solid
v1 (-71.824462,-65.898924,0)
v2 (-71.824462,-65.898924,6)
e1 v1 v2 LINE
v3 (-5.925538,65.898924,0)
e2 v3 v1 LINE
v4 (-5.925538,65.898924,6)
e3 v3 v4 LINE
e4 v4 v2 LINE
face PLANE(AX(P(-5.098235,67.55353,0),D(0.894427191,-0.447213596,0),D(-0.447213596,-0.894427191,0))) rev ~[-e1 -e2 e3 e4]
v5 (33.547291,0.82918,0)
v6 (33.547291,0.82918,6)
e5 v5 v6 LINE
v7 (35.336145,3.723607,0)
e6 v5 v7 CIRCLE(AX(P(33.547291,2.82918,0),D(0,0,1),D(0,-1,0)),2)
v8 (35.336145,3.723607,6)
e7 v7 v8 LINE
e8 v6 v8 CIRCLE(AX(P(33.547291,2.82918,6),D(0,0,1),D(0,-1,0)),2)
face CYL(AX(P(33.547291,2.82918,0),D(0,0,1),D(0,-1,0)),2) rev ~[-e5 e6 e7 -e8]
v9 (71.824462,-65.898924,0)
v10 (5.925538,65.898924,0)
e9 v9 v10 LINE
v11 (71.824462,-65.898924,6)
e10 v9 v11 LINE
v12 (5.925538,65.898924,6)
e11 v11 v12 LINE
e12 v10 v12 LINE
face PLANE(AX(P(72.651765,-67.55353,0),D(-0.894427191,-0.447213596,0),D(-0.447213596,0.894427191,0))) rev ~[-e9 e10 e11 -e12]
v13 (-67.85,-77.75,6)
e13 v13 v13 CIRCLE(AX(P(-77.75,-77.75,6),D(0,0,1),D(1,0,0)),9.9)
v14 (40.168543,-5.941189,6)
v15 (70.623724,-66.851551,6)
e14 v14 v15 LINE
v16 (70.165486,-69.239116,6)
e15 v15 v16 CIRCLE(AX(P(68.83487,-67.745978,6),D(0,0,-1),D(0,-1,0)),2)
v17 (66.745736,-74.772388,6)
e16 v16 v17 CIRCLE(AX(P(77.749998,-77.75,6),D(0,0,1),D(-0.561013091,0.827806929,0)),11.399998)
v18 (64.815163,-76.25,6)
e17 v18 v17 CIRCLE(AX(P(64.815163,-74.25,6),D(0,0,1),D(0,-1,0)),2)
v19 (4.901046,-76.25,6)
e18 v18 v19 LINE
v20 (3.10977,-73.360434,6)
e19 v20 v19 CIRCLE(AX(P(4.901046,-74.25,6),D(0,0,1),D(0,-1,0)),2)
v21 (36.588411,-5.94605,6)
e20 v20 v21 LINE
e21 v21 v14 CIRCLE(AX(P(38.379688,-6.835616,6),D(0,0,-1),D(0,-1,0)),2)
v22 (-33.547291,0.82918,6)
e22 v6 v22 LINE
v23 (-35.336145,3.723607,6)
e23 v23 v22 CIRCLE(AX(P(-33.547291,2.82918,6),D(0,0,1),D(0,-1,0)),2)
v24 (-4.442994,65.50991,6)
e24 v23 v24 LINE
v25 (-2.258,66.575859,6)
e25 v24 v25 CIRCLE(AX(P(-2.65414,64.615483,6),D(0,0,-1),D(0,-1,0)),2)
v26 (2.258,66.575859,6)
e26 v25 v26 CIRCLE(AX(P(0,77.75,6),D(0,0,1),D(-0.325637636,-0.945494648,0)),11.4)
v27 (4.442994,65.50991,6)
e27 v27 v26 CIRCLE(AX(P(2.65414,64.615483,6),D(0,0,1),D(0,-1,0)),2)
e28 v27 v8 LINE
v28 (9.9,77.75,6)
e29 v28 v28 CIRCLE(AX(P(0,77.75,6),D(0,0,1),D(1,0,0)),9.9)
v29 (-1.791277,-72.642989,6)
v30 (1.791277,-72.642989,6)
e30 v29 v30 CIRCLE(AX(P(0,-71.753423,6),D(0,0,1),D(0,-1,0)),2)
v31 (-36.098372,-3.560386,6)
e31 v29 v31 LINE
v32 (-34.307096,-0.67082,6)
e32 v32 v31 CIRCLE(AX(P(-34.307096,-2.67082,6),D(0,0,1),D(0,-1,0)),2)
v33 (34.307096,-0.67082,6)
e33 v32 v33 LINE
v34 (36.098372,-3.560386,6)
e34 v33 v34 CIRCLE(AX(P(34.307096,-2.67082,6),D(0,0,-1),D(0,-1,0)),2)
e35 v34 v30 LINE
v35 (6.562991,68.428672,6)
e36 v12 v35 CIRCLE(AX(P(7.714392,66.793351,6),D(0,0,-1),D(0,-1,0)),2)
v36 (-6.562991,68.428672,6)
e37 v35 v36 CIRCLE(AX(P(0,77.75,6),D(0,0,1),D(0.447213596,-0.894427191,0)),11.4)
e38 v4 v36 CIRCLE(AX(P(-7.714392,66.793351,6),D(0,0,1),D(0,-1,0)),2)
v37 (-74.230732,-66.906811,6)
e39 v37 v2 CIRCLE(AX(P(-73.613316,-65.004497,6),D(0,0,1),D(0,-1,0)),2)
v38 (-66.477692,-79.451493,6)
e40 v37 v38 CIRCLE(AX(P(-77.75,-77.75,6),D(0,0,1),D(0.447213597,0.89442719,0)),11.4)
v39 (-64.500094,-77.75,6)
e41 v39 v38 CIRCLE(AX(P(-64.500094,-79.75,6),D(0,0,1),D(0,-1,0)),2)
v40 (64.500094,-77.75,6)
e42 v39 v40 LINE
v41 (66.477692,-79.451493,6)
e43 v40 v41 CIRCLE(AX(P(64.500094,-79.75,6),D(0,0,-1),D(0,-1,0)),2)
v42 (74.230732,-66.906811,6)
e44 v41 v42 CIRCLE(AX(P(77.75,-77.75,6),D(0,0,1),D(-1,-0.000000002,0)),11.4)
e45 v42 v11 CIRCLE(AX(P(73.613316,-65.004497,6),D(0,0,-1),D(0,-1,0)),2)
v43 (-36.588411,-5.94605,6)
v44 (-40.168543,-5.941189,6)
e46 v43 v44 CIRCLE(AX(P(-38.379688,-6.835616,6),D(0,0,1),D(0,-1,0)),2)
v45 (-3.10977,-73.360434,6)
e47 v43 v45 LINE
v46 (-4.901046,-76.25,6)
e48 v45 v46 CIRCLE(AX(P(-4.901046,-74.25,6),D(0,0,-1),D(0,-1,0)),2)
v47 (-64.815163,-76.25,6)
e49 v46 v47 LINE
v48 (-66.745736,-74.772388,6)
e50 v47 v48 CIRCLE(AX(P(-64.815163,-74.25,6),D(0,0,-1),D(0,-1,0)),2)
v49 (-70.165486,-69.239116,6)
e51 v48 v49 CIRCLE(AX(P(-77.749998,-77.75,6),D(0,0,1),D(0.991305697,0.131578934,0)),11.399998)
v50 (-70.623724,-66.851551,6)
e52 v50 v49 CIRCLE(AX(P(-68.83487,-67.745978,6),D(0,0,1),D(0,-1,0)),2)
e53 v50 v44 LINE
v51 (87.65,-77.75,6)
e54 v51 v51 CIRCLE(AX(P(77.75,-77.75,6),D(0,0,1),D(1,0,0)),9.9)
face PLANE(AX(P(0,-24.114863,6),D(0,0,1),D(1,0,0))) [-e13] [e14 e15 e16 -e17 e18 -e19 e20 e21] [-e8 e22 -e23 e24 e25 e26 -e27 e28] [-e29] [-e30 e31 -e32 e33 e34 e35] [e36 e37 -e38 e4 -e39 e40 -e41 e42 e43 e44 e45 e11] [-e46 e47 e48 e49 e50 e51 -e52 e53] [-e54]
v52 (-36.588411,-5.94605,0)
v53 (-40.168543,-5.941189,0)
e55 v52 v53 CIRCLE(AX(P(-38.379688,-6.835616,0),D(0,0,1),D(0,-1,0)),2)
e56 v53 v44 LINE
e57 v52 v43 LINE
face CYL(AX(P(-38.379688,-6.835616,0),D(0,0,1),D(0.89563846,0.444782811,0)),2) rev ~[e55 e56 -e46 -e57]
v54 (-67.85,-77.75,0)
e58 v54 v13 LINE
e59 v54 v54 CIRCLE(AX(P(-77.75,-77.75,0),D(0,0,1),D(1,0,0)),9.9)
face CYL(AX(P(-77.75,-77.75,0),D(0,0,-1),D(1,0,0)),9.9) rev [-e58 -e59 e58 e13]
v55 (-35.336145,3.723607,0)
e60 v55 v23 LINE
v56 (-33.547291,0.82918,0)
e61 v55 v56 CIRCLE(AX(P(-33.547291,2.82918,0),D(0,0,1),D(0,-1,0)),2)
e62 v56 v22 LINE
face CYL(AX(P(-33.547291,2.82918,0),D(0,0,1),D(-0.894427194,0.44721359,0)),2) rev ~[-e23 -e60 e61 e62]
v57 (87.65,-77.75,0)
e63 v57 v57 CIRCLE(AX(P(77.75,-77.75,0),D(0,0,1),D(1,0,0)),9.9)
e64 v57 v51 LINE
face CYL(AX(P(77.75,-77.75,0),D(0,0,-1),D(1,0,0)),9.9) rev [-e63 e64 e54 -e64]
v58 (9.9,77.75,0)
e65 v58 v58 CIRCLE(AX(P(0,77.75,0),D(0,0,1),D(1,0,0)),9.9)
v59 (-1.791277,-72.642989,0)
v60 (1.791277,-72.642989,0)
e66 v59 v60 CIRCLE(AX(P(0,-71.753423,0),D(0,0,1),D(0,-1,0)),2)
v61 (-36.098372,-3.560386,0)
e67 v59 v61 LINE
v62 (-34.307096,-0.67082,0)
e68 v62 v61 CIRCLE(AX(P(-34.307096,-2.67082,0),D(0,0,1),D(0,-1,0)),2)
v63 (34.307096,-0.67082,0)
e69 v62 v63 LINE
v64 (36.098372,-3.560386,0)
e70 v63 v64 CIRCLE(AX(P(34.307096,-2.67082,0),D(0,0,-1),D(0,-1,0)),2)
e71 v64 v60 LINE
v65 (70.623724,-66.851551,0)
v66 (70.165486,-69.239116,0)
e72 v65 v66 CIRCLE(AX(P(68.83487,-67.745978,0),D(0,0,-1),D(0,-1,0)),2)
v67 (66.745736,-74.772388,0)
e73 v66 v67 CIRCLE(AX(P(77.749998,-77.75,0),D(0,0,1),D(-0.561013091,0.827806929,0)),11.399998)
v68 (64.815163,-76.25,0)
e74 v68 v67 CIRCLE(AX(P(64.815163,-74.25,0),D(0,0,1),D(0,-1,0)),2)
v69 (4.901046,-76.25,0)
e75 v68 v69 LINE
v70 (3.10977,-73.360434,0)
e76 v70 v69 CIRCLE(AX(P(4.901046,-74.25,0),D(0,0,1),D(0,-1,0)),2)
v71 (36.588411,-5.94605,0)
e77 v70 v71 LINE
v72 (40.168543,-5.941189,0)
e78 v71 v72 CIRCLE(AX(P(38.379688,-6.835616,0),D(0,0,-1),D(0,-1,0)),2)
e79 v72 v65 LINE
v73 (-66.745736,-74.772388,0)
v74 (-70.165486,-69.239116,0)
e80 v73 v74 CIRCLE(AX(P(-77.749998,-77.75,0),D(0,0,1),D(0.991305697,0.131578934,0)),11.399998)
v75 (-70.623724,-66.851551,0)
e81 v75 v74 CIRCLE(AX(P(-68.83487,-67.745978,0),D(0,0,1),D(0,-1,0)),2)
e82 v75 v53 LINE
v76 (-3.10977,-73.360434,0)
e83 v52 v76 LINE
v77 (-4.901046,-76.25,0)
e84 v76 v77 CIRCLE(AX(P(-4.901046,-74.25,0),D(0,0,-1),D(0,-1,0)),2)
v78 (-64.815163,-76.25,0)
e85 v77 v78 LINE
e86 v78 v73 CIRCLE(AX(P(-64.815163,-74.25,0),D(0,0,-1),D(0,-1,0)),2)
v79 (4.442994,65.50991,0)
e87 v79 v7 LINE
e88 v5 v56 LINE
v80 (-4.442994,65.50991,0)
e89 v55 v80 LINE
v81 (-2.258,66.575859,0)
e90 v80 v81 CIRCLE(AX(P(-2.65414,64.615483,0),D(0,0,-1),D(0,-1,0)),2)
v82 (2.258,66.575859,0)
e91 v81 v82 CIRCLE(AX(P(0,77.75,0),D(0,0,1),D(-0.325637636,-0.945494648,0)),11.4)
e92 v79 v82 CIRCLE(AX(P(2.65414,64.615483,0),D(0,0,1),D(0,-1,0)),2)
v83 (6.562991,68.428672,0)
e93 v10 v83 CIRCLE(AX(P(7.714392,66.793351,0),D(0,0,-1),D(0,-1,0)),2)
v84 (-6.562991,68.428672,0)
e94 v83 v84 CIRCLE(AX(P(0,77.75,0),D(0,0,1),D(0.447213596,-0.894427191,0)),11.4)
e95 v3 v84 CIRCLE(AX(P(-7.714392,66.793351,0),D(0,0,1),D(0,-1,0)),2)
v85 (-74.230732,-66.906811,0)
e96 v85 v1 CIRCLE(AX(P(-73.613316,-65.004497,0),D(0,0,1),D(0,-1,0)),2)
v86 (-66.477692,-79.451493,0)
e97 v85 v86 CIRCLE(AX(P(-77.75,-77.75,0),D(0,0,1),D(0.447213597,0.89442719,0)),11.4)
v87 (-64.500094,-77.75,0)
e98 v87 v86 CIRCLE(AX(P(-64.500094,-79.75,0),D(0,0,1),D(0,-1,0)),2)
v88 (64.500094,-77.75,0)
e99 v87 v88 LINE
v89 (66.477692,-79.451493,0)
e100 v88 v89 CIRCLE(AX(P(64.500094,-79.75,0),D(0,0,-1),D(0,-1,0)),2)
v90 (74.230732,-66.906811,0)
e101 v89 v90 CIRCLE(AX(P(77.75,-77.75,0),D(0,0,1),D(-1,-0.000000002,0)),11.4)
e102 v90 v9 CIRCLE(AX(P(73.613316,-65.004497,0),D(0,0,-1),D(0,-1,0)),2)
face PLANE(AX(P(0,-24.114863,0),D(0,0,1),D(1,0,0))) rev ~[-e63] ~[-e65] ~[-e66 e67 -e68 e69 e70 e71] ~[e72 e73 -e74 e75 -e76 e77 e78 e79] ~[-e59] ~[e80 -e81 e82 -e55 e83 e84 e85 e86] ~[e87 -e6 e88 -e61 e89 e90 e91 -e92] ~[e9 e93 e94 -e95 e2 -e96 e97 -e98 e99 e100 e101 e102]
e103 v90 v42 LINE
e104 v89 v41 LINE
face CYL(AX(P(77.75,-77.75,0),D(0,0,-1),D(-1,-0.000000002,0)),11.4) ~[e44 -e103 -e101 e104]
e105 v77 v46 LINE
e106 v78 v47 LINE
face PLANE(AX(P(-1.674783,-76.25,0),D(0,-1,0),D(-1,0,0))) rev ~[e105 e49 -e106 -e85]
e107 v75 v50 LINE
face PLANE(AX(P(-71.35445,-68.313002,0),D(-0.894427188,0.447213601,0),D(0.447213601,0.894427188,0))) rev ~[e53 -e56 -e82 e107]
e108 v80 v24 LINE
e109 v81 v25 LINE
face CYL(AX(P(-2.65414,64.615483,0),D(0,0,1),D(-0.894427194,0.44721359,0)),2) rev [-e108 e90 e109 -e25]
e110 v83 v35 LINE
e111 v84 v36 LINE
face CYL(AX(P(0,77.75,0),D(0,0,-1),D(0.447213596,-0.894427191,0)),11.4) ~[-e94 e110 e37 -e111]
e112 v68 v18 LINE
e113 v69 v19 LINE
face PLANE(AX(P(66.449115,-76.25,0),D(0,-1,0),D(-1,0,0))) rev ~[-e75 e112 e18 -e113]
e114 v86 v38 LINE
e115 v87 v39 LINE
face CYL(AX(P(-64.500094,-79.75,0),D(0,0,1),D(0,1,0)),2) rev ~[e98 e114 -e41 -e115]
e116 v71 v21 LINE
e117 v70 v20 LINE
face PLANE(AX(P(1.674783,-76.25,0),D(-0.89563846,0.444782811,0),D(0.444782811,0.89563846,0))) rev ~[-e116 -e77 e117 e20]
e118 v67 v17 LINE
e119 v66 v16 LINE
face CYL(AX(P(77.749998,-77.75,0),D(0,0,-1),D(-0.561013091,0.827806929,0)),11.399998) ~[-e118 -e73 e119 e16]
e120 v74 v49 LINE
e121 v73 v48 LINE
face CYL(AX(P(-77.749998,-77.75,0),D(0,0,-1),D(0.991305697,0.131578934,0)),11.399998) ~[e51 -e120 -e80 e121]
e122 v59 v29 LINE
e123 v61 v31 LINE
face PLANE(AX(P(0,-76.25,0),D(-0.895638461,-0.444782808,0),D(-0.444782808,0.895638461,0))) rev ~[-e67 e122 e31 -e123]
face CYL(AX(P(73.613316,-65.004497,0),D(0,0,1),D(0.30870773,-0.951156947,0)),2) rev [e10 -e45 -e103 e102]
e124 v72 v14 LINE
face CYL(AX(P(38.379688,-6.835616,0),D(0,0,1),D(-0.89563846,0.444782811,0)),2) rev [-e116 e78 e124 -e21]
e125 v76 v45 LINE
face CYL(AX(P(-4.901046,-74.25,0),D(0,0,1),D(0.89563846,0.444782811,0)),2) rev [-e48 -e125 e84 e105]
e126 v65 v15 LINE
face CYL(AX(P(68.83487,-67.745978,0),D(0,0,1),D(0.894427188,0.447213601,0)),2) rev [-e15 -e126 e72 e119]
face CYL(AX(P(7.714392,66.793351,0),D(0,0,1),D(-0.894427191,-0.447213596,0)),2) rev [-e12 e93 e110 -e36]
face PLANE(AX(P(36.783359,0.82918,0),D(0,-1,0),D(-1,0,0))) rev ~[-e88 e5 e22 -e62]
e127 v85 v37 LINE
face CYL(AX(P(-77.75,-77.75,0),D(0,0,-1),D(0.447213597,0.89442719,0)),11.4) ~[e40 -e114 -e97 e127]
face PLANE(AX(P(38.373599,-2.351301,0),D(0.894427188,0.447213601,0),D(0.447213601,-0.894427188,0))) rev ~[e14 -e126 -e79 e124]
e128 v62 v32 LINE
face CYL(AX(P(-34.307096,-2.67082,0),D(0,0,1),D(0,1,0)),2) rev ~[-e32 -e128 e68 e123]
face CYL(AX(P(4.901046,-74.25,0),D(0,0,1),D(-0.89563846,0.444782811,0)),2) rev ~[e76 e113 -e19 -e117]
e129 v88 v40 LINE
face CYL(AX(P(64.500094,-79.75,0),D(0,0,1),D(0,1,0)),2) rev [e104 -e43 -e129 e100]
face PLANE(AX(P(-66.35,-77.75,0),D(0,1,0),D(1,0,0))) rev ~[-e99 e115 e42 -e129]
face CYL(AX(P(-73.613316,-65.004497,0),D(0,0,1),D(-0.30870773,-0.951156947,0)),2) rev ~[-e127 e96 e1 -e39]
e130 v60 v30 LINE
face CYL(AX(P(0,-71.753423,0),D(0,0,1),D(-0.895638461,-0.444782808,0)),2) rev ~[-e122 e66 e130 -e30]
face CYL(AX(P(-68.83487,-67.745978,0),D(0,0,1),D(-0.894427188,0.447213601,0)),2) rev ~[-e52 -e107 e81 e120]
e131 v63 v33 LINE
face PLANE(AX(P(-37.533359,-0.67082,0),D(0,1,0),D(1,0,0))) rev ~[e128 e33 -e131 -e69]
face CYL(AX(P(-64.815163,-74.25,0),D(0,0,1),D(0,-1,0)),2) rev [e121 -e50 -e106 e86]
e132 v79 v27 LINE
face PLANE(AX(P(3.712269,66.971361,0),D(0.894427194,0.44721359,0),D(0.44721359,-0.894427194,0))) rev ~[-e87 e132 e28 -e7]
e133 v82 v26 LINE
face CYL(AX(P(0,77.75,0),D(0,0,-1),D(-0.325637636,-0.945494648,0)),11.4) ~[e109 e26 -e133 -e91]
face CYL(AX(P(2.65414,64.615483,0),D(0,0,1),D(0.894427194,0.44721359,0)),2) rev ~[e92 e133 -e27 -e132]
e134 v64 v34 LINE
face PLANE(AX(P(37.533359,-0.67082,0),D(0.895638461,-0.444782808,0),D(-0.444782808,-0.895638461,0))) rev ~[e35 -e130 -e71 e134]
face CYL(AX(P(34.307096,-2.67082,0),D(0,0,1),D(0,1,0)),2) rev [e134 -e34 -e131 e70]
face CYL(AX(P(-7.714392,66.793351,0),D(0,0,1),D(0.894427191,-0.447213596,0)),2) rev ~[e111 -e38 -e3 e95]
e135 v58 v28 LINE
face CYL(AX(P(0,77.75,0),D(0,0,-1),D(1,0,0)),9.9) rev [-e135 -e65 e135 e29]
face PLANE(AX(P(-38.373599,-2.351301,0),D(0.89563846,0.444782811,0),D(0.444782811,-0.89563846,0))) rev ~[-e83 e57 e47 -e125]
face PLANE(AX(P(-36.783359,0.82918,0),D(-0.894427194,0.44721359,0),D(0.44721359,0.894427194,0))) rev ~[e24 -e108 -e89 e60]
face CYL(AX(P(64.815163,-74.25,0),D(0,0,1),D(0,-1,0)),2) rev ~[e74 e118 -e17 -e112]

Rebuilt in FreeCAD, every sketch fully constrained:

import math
import FreeCAD as App
import Part
import Sketcher
from FreeCAD import Vector
Q = App.Units.Quantity


def edges_at(feature, points):
    """Names of the edges that pass closest to the given points."""
    edges = feature.Shape.Edges
    near = lambda p: min(range(len(edges)), key=lambda i: edges[i].distToShape(Part.Vertex(*p))[0])
    return sorted({f"Edge{near(p) + 1}" for p in points})


def add_polygon(sketch, points):
    """Adds a closed chain of lines whose ends are joined by coincident constraints."""
    first, n = sketch.GeometryCount, len(points)
    for a, b in zip(points, points[1:] + points[:1]):
        sketch.addGeometry(Part.LineSegment(App.Vector(*a, 0), App.Vector(*b, 0)), False)
    for i in range(n):
        sketch.addConstraint(Sketcher.Constraint("Coincident", first + i, 2, first + (i + 1) % n, 1))

doc = App.newDocument("Part")
body = doc.addObject("PartDesign::Body", "Body")

# Sketch on XY plane
sketch1 = doc.addObject("Sketcher::SketchObject", "Sketch")
body.addObject(sketch1)
sketch1.AttachmentSupport = (doc.XY_Plane, [""])
sketch1.MapMode = "FlatFace"
sketch1.addGeometry(Part.LineSegment(Vector(-66, -78, 0), Vector(66, -78, 0)), False)  # 0
sketch1.addGeometry(Part.ArcOfCircle(Part.Circle(Vector(78, -78, 0), Vector(0, 0, 1), 11), math.radians(-180), math.radians(117)), False)  # 1
sketch1.addGeometry(Part.LineSegment(Vector(73, -68, 0), Vector(5, 68, 0)), False)  # 2
sketch1.addGeometry(Part.ArcOfCircle(Part.Circle(Vector(0, 78, 0), Vector(0, 0, 1), 11), math.radians(-63), math.radians(243)), False)  # 3
sketch1.addGeometry(Part.LineSegment(Vector(-5, 68, 0), Vector(-73, -68, 0)), False)  # 4
sketch1.addGeometry(Part.ArcOfCircle(Part.Circle(Vector(-78, -78, 0), Vector(0, 0, 1), 11), math.radians(63), math.radians(360)), False)  # 5
sketch1.addGeometry(Part.Circle(Vector(-78, -78, 0), Vector(0, 0, 1), 10), False)  # 6
sketch1.addGeometry(Part.LineSegment(Vector(-38, -2, 0), Vector(-2, -76, 0)), False)  # 7
sketch1.addGeometry(Part.LineSegment(Vector(-2, -76, 0), Vector(-66, -76, 0)), False)  # 8
sketch1.addGeometry(Part.ArcOfCircle(Part.Circle(Vector(-78, -78, 0), Vector(0, 0, 1), 11), math.radians(8), math.radians(56)), False)  # 9
sketch1.addGeometry(Part.LineSegment(Vector(-71, -68, 0), Vector(-38, -2, 0)), False)  # 10
sketch1.addGeometry(Part.Circle(Vector(78, -78, 0), Vector(0, 0, 1), 10), False)  # 11
add_polygon(sketch1, [(-38, -1), (38, -1), (0, -76)])  # lines 12-14
sketch1.addGeometry(Part.LineSegment(Vector(2, -76, 0), Vector(38, -2, 0)), False)  # 15
sketch1.addGeometry(Part.LineSegment(Vector(38, -2, 0), Vector(71, -68, 0)), False)  # 16
sketch1.addGeometry(Part.ArcOfCircle(Part.Circle(Vector(78, -78, 0), Vector(0, 0, 1), 11), math.radians(124), math.radians(172)), False)  # 17
sketch1.addGeometry(Part.LineSegment(Vector(66, -76, 0), Vector(2, -76, 0)), False)  # 18
sketch1.addGeometry(Part.LineSegment(Vector(-37, 1, 0), Vector(-4, 67, 0)), False)  # 19
sketch1.addGeometry(Part.ArcOfCircle(Part.Circle(Vector(0, 78, 0), Vector(0, 0, 1), 11), math.radians(-109), math.radians(-71)), False)  # 20
sketch1.addGeometry(Part.LineSegment(Vector(4, 67, 0), Vector(37, 1, 0)), False)  # 21
sketch1.addGeometry(Part.LineSegment(Vector(37, 1, 0), Vector(-37, 1, 0)), False)  # 22
sketch1.addGeometry(Part.Circle(Vector(0, 78, 0), Vector(0, 0, 1), 10), False)  # 23
sketch1.addConstraint(Sketcher.Constraint("Coincident", 0, 2, 1, 1))
sketch1.addConstraint(Sketcher.Constraint("Coincident", 1, 2, 2, 1))
sketch1.addConstraint(Sketcher.Constraint("Coincident", 2, 2, 3, 1))
sketch1.addConstraint(Sketcher.Constraint("Coincident", 3, 2, 4, 1))
sketch1.addConstraint(Sketcher.Constraint("Coincident", 4, 2, 5, 1))
sketch1.addConstraint(Sketcher.Constraint("Coincident", 5, 2, 0, 1))
sketch1.addConstraint(Sketcher.Constraint("Coincident", 7, 2, 8, 1))
sketch1.addConstraint(Sketcher.Constraint("Coincident", 8, 2, 9, 1))
sketch1.addConstraint(Sketcher.Constraint("Coincident", 9, 2, 10, 1))
sketch1.addConstraint(Sketcher.Constraint("Coincident", 10, 2, 7, 1))
sketch1.addConstraint(Sketcher.Constraint("Coincident", 15, 2, 16, 1))
sketch1.addConstraint(Sketcher.Constraint("Coincident", 16, 2, 17, 1))
sketch1.addConstraint(Sketcher.Constraint("Coincident", 17, 2, 18, 1))
sketch1.addConstraint(Sketcher.Constraint("Coincident", 18, 2, 15, 1))
sketch1.addConstraint(Sketcher.Constraint("Coincident", 19, 2, 20, 1))
sketch1.addConstraint(Sketcher.Constraint("Coincident", 20, 2, 21, 1))
sketch1.addConstraint(Sketcher.Constraint("Coincident", 21, 2, 22, 1))
sketch1.addConstraint(Sketcher.Constraint("Coincident", 22, 2, 19, 1))
sketch1.addConstraint(Sketcher.Constraint("Horizontal", 0))
sketch1.addConstraint(Sketcher.Constraint("Horizontal", 8))
sketch1.addConstraint(Sketcher.Constraint("Horizontal", 12))
sketch1.addConstraint(Sketcher.Constraint("Horizontal", 18))
sketch1.addConstraint(Sketcher.Constraint("Horizontal", 22))
sketch1.addConstraint(Sketcher.Constraint("Coincident", 6, 3, 5, 3))
sketch1.addConstraint(Sketcher.Constraint("Coincident", 9, 3, 5, 3))
sketch1.addConstraint(Sketcher.Constraint("Coincident", 11, 3, 1, 3))
sketch1.addConstraint(Sketcher.Constraint("Coincident", 17, 3, 1, 3))
sketch1.addConstraint(Sketcher.Constraint("Coincident", 20, 3, 3, 3))
sketch1.addConstraint(Sketcher.Constraint("Coincident", 23, 3, 3, 3))
sketch1.addConstraint(Sketcher.Constraint("Equal", 1, 3))
sketch1.addConstraint(Sketcher.Constraint("Equal", 3, 5))
sketch1.addConstraint(Sketcher.Constraint("Equal", 5, 9))
sketch1.addConstraint(Sketcher.Constraint("Equal", 6, 11))
sketch1.addConstraint(Sketcher.Constraint("Equal", 9, 17))
sketch1.addConstraint(Sketcher.Constraint("Equal", 17, 20))
sketch1.addConstraint(Sketcher.Constraint("Equal", 11, 23))
sketch1.addConstraint(Sketcher.Constraint("Symmetric", 1, 3, 5, 3, -2))
sketch1.addConstraint(Sketcher.Constraint("Symmetric", 2, 2, 3, 2, -2))
sketch1.addConstraint(Sketcher.Constraint("Symmetric", 10, 2, 15, 2, -2))
sketch1.addConstraint(Sketcher.Constraint("Symmetric", 7, 2, 18, 2, -2))
sketch1.addConstraint(Sketcher.Constraint("PointOnObject", 13, 2, -2))
sketch1.addConstraint(Sketcher.Constraint("Parallel", 4, 10))
sketch1.addConstraint(Sketcher.Constraint("Parallel", 7, 14))
sketch1.addConstraint(Sketcher.Constraint("Parallel", 13, 15))
sketch1.addConstraint(Sketcher.Constraint("Parallel", 2, 16))
sketch1.addConstraint(Sketcher.Constraint("Parallel", 10, 19))
sketch1.addConstraint(Sketcher.Constraint("Parallel", 16, 21))
sketch1.addConstraint(Sketcher.Constraint("Horizontal", 17, 3, 0, 2))
sketch1.addConstraint(Sketcher.Constraint("Horizontal", 1, 2, 4, 2))
sketch1.addConstraint(Sketcher.Constraint("Horizontal", 8, 2, 13, 2))
sketch1.addConstraint(Sketcher.Constraint("Horizontal", 19, 2, 20, 2))
sketch1.addConstraint(Sketcher.Constraint("Diameter", 6, Q("19.8 mm")))
sketch1.addConstraint(Sketcher.Constraint("Radius", 1, Q("11.4 mm")))
sketch1.addConstraint(Sketcher.Constraint("DistanceX", 0, 1, 0, 2, Q("132.7 mm")))
sketch1.addConstraint(Sketcher.Constraint("DistanceY", 1, 3, 3, 3, Q("155.5 mm")))
sketch1.addConstraint(Sketcher.Constraint("DistanceY", 5, 2, 7, 2, Q("1.5 mm")))
sketch1.addConstraint(Sketcher.Constraint("DistanceY", 12, 2, 21, 2, Q("1.5 mm")))
sketch1.addConstraint(Sketcher.Constraint("DistanceY", 1, 3, -1, 1, Q("77.75 mm")))
sketch1.addConstraint(Sketcher.Constraint("DistanceX", 3, 2, 1, 2, Q("77.75 mm")))
sketch1.addConstraint(Sketcher.Constraint("DistanceX", 21, 2, 12, 2, Q("0.75 mm")))
sketch1.addConstraint(Sketcher.Constraint("DistanceY", 9, 2, -1, 1, Q("68.313002 mm")))
sketch1.addConstraint(Sketcher.Constraint("DistanceX", 8, 2, 8, 1, Q("64.774332 mm")))
sketch1.addConstraint(Sketcher.Constraint("DistanceX", 10, 2, -1, 1, Q("38.373599 mm")))
sketch1.addConstraint(Sketcher.Constraint("DistanceY", 10, 2, -1, 1, Q("2.351301 mm")))
sketch1.addConstraint(Sketcher.Constraint("DistanceX", 12, 1, 12, 2, Q("75.066718 mm")))
pad1 = doc.addObject("PartDesign::Pad", "Pad")
body.addObject(pad1)
pad1.Profile = sketch1
pad1.Length = 6
doc.recompute()

fillet = doc.addObject("PartDesign::Fillet", "Fillet")
body.addObject(fillet)
fillet.Base = (pad1, edges_at(pad1, [
    (-37.533, -0.671, 3),
    (-3.712, 66.971, 3),
    (5.098, 67.554, 3),
    (3.712, 66.971, 3),
    (-5.098, 67.554, 3),
    (38.374, -2.351, 3),
    (37.533, -0.671, 3),
    (36.783, 0.829, 3),
    (1.675, -76.25, 3),
    (0, -76.25, 3),
    (-1.675, -76.25, 3),
    (71.354, -68.313, 3),
    (66.449, -76.25, 3),
    (66.35, -77.75, 3),
    (72.652, -67.554, 3),
    (-66.35, -77.75, 3),
    (-72.652, -67.554, 3),
    (-66.449, -76.25, 3),
    (-71.354, -68.313, 3),
    (-36.783, 0.829, 3),
    (-38.374, -2.351, 3),
]))
fillet.Radius = 2

doc.recompute()
